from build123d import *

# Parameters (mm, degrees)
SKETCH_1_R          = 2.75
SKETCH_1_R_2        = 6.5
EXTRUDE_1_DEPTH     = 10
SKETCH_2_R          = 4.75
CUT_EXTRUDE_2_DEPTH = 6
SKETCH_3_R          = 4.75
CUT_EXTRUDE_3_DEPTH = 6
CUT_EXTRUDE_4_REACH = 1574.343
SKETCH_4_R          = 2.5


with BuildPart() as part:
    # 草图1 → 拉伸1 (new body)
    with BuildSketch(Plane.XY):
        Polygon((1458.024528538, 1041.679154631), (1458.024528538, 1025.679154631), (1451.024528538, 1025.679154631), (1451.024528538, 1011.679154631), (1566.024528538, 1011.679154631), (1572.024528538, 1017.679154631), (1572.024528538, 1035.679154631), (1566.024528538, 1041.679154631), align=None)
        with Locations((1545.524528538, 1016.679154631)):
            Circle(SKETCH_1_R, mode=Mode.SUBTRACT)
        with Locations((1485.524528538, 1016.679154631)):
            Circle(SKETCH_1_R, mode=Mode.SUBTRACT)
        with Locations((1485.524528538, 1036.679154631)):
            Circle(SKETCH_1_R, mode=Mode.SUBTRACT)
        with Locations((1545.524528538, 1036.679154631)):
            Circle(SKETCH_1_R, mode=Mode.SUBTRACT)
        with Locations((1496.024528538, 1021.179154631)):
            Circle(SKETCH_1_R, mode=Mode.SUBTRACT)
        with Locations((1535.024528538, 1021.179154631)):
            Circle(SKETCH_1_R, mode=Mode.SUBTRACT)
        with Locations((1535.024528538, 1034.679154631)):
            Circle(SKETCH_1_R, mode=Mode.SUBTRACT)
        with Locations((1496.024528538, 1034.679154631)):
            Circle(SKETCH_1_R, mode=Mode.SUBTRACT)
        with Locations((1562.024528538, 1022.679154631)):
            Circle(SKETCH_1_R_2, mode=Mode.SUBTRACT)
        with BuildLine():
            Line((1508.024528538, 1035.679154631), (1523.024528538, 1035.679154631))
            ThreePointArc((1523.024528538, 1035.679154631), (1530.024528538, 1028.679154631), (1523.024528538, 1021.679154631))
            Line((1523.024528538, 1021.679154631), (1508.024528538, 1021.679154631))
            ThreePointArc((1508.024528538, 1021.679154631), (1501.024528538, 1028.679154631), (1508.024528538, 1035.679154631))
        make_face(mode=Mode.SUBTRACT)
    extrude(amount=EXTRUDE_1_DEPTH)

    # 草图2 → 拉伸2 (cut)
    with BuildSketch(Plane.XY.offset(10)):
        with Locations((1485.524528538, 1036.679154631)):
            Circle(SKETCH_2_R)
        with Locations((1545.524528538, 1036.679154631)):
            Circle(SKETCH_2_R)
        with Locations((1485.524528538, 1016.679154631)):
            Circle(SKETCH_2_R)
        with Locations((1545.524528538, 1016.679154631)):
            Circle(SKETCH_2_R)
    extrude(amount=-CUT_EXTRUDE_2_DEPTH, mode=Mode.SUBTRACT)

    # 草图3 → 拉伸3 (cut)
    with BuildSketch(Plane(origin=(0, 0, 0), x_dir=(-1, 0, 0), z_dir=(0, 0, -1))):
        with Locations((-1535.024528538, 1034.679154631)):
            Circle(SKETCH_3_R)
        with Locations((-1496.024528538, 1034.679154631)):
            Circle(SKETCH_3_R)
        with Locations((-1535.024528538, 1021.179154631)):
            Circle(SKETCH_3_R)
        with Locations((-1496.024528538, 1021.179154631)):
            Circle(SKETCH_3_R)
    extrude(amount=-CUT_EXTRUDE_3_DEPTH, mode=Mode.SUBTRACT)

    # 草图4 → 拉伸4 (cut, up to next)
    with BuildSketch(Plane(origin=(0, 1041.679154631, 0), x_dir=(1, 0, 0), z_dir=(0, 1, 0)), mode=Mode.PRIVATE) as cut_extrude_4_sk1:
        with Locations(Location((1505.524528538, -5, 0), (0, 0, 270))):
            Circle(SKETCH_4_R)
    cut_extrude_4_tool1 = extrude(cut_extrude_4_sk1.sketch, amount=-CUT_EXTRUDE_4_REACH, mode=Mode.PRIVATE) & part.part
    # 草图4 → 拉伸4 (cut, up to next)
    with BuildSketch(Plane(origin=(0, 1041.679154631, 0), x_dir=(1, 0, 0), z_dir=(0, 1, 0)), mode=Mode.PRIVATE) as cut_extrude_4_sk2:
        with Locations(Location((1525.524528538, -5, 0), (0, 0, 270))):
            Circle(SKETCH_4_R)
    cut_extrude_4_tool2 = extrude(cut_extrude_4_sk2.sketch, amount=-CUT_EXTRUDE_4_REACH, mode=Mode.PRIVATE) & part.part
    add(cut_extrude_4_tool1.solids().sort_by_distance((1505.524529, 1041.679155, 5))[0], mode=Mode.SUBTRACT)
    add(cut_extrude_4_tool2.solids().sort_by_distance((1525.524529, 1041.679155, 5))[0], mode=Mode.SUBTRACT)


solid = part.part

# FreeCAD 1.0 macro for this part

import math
import FreeCAD as App
import Part
import Sketcher
from FreeCAD import Vector
Q = App.Units.Quantity

doc = App.newDocument("Part")
params = doc.addObject("Spreadsheet::Sheet", "Params")
for row, (alias, value) in enumerate([
    ("sketch1_diameter", "13 mm"),
    ("sketch1_radius", "7 mm"),
    ("sketch1_diameter2", "5.5 mm"),
    ("sketch1_width", "7 mm"),
    ("sketch1_width2", "115 mm"),
    ("pad1_length", "10 mm"),
    ("sketch2_diameter", "9.5 mm"),
    ("pocket1_length", "6 mm"),
    ("sketch3_diameter", "9.5 mm"),
    ("pocket2_length", "6 mm"),
    ("sketch4_diameter", "5 mm"),
    ("sketch5_diameter", "5 mm"),
], start=1):
    params.set(f"A{row}", alias)
    params.set(f"B{row}", "=" + value)
    params.setAlias(f"B{row}", alias)

body = doc.addObject("PartDesign::Body", "Body")

# Sketch on XY plane
sketch1 = body.newObject("Sketcher::SketchObject", "Sketch")
sketch1.AttachmentSupport = (doc.getObject("XY_Plane"), [""])
sketch1.MapMode = "FlatFace"
sketch1.addGeometry([
    Part.LineSegment(Vector(1458.024529, 1041.679155, 0), Vector(1458.024529, 1025.679155, 0)),  # 0
    Part.LineSegment(Vector(1458.024529, 1025.679155, 0), Vector(1451.024529, 1025.679155, 0)),  # 1
    Part.LineSegment(Vector(1451.024529, 1025.679155, 0), Vector(1451.024529, 1011.679155, 0)),  # 2
    Part.LineSegment(Vector(1451.024529, 1011.679155, 0), Vector(1566.024529, 1011.679155, 0)),  # 3
    Part.LineSegment(Vector(1566.024529, 1011.679155, 0), Vector(1572.024529, 1017.679155, 0)),  # 4
    Part.LineSegment(Vector(1572.024529, 1017.679155, 0), Vector(1572.024529, 1035.679155, 0)),  # 5
    Part.LineSegment(Vector(1572.024529, 1035.679155, 0), Vector(1566.024529, 1041.679155, 0)),  # 6
    Part.LineSegment(Vector(1566.024529, 1041.679155, 0), Vector(1458.024529, 1041.679155, 0)),  # 7
    Part.Circle(Vector(1485.524529, 1016.679155, 0), Vector(0, 0, 1), 2.75),  # 8
    Part.Circle(Vector(1496.024529, 1021.179155, 0), Vector(0, 0, 1), 2.75),  # 9
    Part.Circle(Vector(1545.524529, 1016.679155, 0), Vector(0, 0, 1), 2.75),  # 10
    Part.Circle(Vector(1535.024529, 1021.179155, 0), Vector(0, 0, 1), 2.75),  # 11
    Part.Circle(Vector(1562.024529, 1022.679155, 0), Vector(0, 0, 1), 6.5),  # 12
    Part.ArcOfCircle(Part.Circle(Vector(1508.024529, 1028.679155, 0), Vector(0, 0, 1), 7), math.radians(90), math.radians(270)),  # 13
    Part.LineSegment(Vector(1508.024529, 1035.679155, 0), Vector(1523.024529, 1035.679155, 0)),  # 14
    Part.ArcOfCircle(Part.Circle(Vector(1523.024529, 1028.679155, 0), Vector(0, 0, 1), 7), math.radians(-90), math.radians(90)),  # 15
    Part.LineSegment(Vector(1523.024529, 1021.679155, 0), Vector(1508.024529, 1021.679155, 0)),  # 16
    Part.Circle(Vector(1496.024529, 1034.679155, 0), Vector(0, 0, 1), 2.75),  # 17
    Part.Circle(Vector(1485.524529, 1036.679155, 0), Vector(0, 0, 1), 2.75),  # 18
    Part.Circle(Vector(1535.024529, 1034.679155, 0), Vector(0, 0, 1), 2.75),  # 19
    Part.Circle(Vector(1545.524529, 1036.679155, 0), Vector(0, 0, 1), 2.75),  # 20
], False)
sketch1.addConstraint([
    Sketcher.Constraint("Coincident", 0, 2, 1, 1),
    Sketcher.Constraint("Coincident", 1, 2, 2, 1),
    Sketcher.Constraint("Coincident", 2, 2, 3, 1),
    Sketcher.Constraint("Coincident", 3, 2, 4, 1),
    Sketcher.Constraint("Coincident", 4, 2, 5, 1),
    Sketcher.Constraint("Coincident", 5, 2, 6, 1),
    Sketcher.Constraint("Coincident", 6, 2, 7, 1),
    Sketcher.Constraint("Coincident", 7, 2, 0, 1),
    Sketcher.Constraint("Tangent", 13, 1, 14, 1),
    Sketcher.Constraint("Tangent", 14, 2, 15, 2),
    Sketcher.Constraint("Tangent", 15, 1, 16, 1),
    Sketcher.Constraint("Tangent", 16, 2, 13, 2),
    Sketcher.Constraint("Vertical", 0),
    Sketcher.Constraint("Horizontal", 1),
    Sketcher.Constraint("Vertical", 2),
    Sketcher.Constraint("Horizontal", 3),
    Sketcher.Constraint("Vertical", 5),
    Sketcher.Constraint("Horizontal", 7),
    Sketcher.Constraint("Horizontal", 14),
    Sketcher.Constraint("Horizontal", 16),
    Sketcher.Constraint("Equal", 8, 9),
    Sketcher.Constraint("Equal", 9, 10),
    Sketcher.Constraint("Equal", 10, 11),
    Sketcher.Constraint("Equal", 11, 17),
    Sketcher.Constraint("Equal", 17, 18),
    Sketcher.Constraint("Equal", 18, 19),
    Sketcher.Constraint("Equal", 19, 20),
    Sketcher.Constraint("Perpendicular", 4, 6),
    Sketcher.Constraint("Horizontal", 8, 3, 10, 3),
    Sketcher.Constraint("Horizontal", 9, 3, 11, 3),
    Sketcher.Constraint("Horizontal", 17, 3, 19, 3),
    Sketcher.Constraint("Horizontal", 18, 3, 20, 3),
    Sketcher.Constraint("Horizontal", 5, 2, 13, 1),
    Sketcher.Constraint("Vertical", 9, 3, 17, 3),
    Sketcher.Constraint("Vertical", 8, 3, 18, 3),
    Sketcher.Constraint("Vertical", 11, 3, 19, 3),
    Sketcher.Constraint("Vertical", 10, 3, 20, 3),
    Sketcher.Constraint("Vertical", 3, 2, 6, 2),
    Sketcher.Constraint("Equal", 4, 6),
    Sketcher.Constraint("Diameter", 12, Q("13 mm")),
    Sketcher.Constraint("Radius", 13, Q("7 mm")),
    Sketcher.Constraint("Diameter", 8, Q("5.5 mm")),
    Sketcher.Constraint("DistanceX", 1, 2, 1, 1, Q("7 mm")),
    Sketcher.Constraint("DistanceX", 3, 1, 3, 2, Q("115 mm")),
    Sketcher.Constraint("DistanceX", 14, 1, 14, 2, Q("15 mm")),
    Sketcher.Constraint("DistanceY", 0, 2, 0, 1, Q("16 mm")),
    Sketcher.Constraint("DistanceY", 2, 2, 2, 1, Q("14 mm")),
    Sketcher.Constraint("DistanceY", 5, 1, 5, 2, Q("18 mm")),
    Sketcher.Constraint("DistanceX", 8, 3, 10, 3, Q("60 mm")),
    Sketcher.Constraint("DistanceX", 9, 3, 11, 3, Q("39 mm")),
    Sketcher.Constraint("DistanceY", 10, 3, 12, 3, Q("6 mm")),
    Sketcher.Constraint("DistanceX", 11, 3, 12, 3, Q("27 mm")),
    Sketcher.Constraint("DistanceX", 9, 3, 13, 3, Q("12 mm")),
    Sketcher.Constraint("DistanceY", 8, 3, 13, 3, Q("12 mm")),
    Sketcher.Constraint("DistanceY", 13, 3, 17, 3, Q("6 mm")),
    Sketcher.Constraint("DistanceY", 17, 3, 18, 3, Q("2 mm")),
    Sketcher.Constraint("DistanceX", 0, 2, 9, 3, Q("38 mm")),
    Sketcher.Constraint("DistanceX", 8, 3, 9, 3, Q("10.5 mm")),
    Sketcher.Constraint("DistanceY", 8, 3, 9, 3, Q("4.5 mm")),
    Sketcher.Constraint("DistanceX", -1, 1, 8, 3, Q("1485.524529 mm")),
    Sketcher.Constraint("DistanceY", -1, 1, 8, 3, Q("1016.679155 mm")),
])
sketch1.setExpression("Constraints[39]", "Params.sketch1_diameter")
sketch1.setExpression("Constraints[40]", "Params.sketch1_radius")
sketch1.setExpression("Constraints[41]", "Params.sketch1_diameter2")
sketch1.setExpression("Constraints[42]", "Params.sketch1_width")
sketch1.setExpression("Constraints[43]", "Params.sketch1_width2")
pad1 = body.newObject("PartDesign::Pad", "Pad")
pad1.Profile = sketch1
pad1.setExpression("Length", "Params.pad1_length")

# Sketch on XY plane
sketch2 = body.newObject("Sketcher::SketchObject", "Sketch001")
sketch2.AttachmentSupport = (doc.getObject("XY_Plane"), [""])
sketch2.MapMode = "FlatFace"
sketch2.AttachmentOffset = App.Placement(Vector(0, 0, 10), App.Rotation())
sketch2.addGeometry([
    Part.Circle(Vector(1485.524529, 1036.679155, 0), Vector(0, 0, 1), 4.75),
    Part.Circle(Vector(1545.524529, 1036.679155, 0), Vector(0, 0, 1), 4.75),
    Part.Circle(Vector(1485.524529, 1016.679155, 0), Vector(0, 0, 1), 4.75),
    Part.Circle(Vector(1545.524529, 1016.679155, 0), Vector(0, 0, 1), 4.75),
], False)
sketch2.addConstraint([
    Sketcher.Constraint("Equal", 0, 1),
    Sketcher.Constraint("Equal", 1, 2),
    Sketcher.Constraint("Equal", 2, 3),
    Sketcher.Constraint("Horizontal", 0, 3, 1, 3),
    Sketcher.Constraint("Horizontal", 2, 3, 3, 3),
    Sketcher.Constraint("Vertical", 0, 3, 2, 3),
    Sketcher.Constraint("Vertical", 1, 3, 3, 3),
    Sketcher.Constraint("Diameter", 0, Q("9.5 mm")),
    Sketcher.Constraint("DistanceX", 0, 3, 1, 3, Q("60 mm")),
    Sketcher.Constraint("DistanceY", 2, 3, 0, 3, Q("20 mm")),
    Sketcher.Constraint("DistanceX", -1, 1, 0, 3, Q("1485.524529 mm")),
    Sketcher.Constraint("DistanceY", -1, 1, 0, 3, Q("1036.679155 mm")),
])
sketch2.setExpression("Constraints[7]", "Params.sketch2_diameter")
pocket1 = body.newObject("PartDesign::Pocket", "Pocket")
pocket1.Profile = sketch2
pocket1.setExpression("Length", "Params.pocket1_length")

# Sketch on XY plane
sketch3 = body.newObject("Sketcher::SketchObject", "Sketch002")
sketch3.AttachmentSupport = (doc.getObject("XY_Plane"), [""])
sketch3.MapMode = "FlatFace"
sketch3.addGeometry([
    Part.Circle(Vector(1535.024529, 1034.679155, 0), Vector(0, 0, 1), 4.75),
    Part.Circle(Vector(1496.024529, 1034.679155, 0), Vector(0, 0, 1), 4.75),
    Part.Circle(Vector(1535.024529, 1021.179155, 0), Vector(0, 0, 1), 4.75),
    Part.Circle(Vector(1496.024529, 1021.179155, 0), Vector(0, 0, 1), 4.75),
], False)
sketch3.addConstraint([
    Sketcher.Constraint("Equal", 0, 1),
    Sketcher.Constraint("Equal", 1, 2),
    Sketcher.Constraint("Equal", 2, 3),
    Sketcher.Constraint("Horizontal", 0, 3, 1, 3),
    Sketcher.Constraint("Horizontal", 2, 3, 3, 3),
    Sketcher.Constraint("Vertical", 0, 3, 2, 3),
    Sketcher.Constraint("Vertical", 1, 3, 3, 3),
    Sketcher.Constraint("Diameter", 0, Q("9.5 mm")),
    Sketcher.Constraint("DistanceX", 1, 3, 0, 3, Q("39 mm")),
    Sketcher.Constraint("DistanceY", 2, 3, 0, 3, Q("13.5 mm")),
    Sketcher.Constraint("DistanceX", -1, 1, 0, 3, Q("1535.024529 mm")),
    Sketcher.Constraint("DistanceY", -1, 1, 0, 3, Q("1034.679155 mm")),
])
sketch3.setExpression("Constraints[7]", "Params.sketch3_diameter")
pocket2 = body.newObject("PartDesign::Pocket", "Pocket001")
pocket2.Profile = sketch3
pocket2.setExpression("Length", "Params.pocket2_length")
pocket2.Reversed = True

# Sketch on XZ plane
sketch4 = body.newObject("Sketcher::SketchObject", "Sketch003")
sketch4.AttachmentSupport = (doc.getObject("XZ_Plane"), [""])
sketch4.MapMode = "FlatFace"
sketch4.AttachmentOffset = App.Placement(Vector(0, 0, -1041.679155), App.Rotation())
sketch4.addGeometry(Part.Circle(Vector(1505.524529, 5, 0), Vector(0, 0, 1), 2.5), False)
sketch4.addConstraint([
    Sketcher.Constraint("Diameter", 0, Q("5 mm")),
    Sketcher.Constraint("DistanceY", -1, 1, 0, 3, Q("5 mm")),
    Sketcher.Constraint("DistanceX", -1, 1, 0, 3, Q("1505.524529 mm")),
])
sketch4.setExpression("Constraints[0]", "Params.sketch4_diameter")
pocket3 = body.newObject("PartDesign::Pocket", "Pocket002")
pocket3.Profile = sketch4
pocket3.Type = "UpToFirst"
pocket3.Reversed = True

# Sketch on XZ plane
sketch5 = body.newObject("Sketcher::SketchObject", "Sketch004")
sketch5.AttachmentSupport = (doc.getObject("XZ_Plane"), [""])
sketch5.MapMode = "FlatFace"
sketch5.AttachmentOffset = App.Placement(Vector(0, 0, -1041.679155), App.Rotation())
sketch5.addGeometry(Part.Circle(Vector(1525.524529, 5, 0), Vector(0, 0, 1), 2.5), False)
sketch5.addConstraint([
    Sketcher.Constraint("Diameter", 0, Q("5 mm")),
    Sketcher.Constraint("DistanceY", -1, 1, 0, 3, Q("5 mm")),
    Sketcher.Constraint("DistanceX", -1, 1, 0, 3, Q("1525.524529 mm")),
])
sketch5.setExpression("Constraints[0]", "Params.sketch5_diameter")
pocket4 = body.newObject("PartDesign::Pocket", "Pocket003")
pocket4.Profile = sketch5
pocket4.Type = "UpToFirst"
pocket4.Reversed = True

doc.recompute()
